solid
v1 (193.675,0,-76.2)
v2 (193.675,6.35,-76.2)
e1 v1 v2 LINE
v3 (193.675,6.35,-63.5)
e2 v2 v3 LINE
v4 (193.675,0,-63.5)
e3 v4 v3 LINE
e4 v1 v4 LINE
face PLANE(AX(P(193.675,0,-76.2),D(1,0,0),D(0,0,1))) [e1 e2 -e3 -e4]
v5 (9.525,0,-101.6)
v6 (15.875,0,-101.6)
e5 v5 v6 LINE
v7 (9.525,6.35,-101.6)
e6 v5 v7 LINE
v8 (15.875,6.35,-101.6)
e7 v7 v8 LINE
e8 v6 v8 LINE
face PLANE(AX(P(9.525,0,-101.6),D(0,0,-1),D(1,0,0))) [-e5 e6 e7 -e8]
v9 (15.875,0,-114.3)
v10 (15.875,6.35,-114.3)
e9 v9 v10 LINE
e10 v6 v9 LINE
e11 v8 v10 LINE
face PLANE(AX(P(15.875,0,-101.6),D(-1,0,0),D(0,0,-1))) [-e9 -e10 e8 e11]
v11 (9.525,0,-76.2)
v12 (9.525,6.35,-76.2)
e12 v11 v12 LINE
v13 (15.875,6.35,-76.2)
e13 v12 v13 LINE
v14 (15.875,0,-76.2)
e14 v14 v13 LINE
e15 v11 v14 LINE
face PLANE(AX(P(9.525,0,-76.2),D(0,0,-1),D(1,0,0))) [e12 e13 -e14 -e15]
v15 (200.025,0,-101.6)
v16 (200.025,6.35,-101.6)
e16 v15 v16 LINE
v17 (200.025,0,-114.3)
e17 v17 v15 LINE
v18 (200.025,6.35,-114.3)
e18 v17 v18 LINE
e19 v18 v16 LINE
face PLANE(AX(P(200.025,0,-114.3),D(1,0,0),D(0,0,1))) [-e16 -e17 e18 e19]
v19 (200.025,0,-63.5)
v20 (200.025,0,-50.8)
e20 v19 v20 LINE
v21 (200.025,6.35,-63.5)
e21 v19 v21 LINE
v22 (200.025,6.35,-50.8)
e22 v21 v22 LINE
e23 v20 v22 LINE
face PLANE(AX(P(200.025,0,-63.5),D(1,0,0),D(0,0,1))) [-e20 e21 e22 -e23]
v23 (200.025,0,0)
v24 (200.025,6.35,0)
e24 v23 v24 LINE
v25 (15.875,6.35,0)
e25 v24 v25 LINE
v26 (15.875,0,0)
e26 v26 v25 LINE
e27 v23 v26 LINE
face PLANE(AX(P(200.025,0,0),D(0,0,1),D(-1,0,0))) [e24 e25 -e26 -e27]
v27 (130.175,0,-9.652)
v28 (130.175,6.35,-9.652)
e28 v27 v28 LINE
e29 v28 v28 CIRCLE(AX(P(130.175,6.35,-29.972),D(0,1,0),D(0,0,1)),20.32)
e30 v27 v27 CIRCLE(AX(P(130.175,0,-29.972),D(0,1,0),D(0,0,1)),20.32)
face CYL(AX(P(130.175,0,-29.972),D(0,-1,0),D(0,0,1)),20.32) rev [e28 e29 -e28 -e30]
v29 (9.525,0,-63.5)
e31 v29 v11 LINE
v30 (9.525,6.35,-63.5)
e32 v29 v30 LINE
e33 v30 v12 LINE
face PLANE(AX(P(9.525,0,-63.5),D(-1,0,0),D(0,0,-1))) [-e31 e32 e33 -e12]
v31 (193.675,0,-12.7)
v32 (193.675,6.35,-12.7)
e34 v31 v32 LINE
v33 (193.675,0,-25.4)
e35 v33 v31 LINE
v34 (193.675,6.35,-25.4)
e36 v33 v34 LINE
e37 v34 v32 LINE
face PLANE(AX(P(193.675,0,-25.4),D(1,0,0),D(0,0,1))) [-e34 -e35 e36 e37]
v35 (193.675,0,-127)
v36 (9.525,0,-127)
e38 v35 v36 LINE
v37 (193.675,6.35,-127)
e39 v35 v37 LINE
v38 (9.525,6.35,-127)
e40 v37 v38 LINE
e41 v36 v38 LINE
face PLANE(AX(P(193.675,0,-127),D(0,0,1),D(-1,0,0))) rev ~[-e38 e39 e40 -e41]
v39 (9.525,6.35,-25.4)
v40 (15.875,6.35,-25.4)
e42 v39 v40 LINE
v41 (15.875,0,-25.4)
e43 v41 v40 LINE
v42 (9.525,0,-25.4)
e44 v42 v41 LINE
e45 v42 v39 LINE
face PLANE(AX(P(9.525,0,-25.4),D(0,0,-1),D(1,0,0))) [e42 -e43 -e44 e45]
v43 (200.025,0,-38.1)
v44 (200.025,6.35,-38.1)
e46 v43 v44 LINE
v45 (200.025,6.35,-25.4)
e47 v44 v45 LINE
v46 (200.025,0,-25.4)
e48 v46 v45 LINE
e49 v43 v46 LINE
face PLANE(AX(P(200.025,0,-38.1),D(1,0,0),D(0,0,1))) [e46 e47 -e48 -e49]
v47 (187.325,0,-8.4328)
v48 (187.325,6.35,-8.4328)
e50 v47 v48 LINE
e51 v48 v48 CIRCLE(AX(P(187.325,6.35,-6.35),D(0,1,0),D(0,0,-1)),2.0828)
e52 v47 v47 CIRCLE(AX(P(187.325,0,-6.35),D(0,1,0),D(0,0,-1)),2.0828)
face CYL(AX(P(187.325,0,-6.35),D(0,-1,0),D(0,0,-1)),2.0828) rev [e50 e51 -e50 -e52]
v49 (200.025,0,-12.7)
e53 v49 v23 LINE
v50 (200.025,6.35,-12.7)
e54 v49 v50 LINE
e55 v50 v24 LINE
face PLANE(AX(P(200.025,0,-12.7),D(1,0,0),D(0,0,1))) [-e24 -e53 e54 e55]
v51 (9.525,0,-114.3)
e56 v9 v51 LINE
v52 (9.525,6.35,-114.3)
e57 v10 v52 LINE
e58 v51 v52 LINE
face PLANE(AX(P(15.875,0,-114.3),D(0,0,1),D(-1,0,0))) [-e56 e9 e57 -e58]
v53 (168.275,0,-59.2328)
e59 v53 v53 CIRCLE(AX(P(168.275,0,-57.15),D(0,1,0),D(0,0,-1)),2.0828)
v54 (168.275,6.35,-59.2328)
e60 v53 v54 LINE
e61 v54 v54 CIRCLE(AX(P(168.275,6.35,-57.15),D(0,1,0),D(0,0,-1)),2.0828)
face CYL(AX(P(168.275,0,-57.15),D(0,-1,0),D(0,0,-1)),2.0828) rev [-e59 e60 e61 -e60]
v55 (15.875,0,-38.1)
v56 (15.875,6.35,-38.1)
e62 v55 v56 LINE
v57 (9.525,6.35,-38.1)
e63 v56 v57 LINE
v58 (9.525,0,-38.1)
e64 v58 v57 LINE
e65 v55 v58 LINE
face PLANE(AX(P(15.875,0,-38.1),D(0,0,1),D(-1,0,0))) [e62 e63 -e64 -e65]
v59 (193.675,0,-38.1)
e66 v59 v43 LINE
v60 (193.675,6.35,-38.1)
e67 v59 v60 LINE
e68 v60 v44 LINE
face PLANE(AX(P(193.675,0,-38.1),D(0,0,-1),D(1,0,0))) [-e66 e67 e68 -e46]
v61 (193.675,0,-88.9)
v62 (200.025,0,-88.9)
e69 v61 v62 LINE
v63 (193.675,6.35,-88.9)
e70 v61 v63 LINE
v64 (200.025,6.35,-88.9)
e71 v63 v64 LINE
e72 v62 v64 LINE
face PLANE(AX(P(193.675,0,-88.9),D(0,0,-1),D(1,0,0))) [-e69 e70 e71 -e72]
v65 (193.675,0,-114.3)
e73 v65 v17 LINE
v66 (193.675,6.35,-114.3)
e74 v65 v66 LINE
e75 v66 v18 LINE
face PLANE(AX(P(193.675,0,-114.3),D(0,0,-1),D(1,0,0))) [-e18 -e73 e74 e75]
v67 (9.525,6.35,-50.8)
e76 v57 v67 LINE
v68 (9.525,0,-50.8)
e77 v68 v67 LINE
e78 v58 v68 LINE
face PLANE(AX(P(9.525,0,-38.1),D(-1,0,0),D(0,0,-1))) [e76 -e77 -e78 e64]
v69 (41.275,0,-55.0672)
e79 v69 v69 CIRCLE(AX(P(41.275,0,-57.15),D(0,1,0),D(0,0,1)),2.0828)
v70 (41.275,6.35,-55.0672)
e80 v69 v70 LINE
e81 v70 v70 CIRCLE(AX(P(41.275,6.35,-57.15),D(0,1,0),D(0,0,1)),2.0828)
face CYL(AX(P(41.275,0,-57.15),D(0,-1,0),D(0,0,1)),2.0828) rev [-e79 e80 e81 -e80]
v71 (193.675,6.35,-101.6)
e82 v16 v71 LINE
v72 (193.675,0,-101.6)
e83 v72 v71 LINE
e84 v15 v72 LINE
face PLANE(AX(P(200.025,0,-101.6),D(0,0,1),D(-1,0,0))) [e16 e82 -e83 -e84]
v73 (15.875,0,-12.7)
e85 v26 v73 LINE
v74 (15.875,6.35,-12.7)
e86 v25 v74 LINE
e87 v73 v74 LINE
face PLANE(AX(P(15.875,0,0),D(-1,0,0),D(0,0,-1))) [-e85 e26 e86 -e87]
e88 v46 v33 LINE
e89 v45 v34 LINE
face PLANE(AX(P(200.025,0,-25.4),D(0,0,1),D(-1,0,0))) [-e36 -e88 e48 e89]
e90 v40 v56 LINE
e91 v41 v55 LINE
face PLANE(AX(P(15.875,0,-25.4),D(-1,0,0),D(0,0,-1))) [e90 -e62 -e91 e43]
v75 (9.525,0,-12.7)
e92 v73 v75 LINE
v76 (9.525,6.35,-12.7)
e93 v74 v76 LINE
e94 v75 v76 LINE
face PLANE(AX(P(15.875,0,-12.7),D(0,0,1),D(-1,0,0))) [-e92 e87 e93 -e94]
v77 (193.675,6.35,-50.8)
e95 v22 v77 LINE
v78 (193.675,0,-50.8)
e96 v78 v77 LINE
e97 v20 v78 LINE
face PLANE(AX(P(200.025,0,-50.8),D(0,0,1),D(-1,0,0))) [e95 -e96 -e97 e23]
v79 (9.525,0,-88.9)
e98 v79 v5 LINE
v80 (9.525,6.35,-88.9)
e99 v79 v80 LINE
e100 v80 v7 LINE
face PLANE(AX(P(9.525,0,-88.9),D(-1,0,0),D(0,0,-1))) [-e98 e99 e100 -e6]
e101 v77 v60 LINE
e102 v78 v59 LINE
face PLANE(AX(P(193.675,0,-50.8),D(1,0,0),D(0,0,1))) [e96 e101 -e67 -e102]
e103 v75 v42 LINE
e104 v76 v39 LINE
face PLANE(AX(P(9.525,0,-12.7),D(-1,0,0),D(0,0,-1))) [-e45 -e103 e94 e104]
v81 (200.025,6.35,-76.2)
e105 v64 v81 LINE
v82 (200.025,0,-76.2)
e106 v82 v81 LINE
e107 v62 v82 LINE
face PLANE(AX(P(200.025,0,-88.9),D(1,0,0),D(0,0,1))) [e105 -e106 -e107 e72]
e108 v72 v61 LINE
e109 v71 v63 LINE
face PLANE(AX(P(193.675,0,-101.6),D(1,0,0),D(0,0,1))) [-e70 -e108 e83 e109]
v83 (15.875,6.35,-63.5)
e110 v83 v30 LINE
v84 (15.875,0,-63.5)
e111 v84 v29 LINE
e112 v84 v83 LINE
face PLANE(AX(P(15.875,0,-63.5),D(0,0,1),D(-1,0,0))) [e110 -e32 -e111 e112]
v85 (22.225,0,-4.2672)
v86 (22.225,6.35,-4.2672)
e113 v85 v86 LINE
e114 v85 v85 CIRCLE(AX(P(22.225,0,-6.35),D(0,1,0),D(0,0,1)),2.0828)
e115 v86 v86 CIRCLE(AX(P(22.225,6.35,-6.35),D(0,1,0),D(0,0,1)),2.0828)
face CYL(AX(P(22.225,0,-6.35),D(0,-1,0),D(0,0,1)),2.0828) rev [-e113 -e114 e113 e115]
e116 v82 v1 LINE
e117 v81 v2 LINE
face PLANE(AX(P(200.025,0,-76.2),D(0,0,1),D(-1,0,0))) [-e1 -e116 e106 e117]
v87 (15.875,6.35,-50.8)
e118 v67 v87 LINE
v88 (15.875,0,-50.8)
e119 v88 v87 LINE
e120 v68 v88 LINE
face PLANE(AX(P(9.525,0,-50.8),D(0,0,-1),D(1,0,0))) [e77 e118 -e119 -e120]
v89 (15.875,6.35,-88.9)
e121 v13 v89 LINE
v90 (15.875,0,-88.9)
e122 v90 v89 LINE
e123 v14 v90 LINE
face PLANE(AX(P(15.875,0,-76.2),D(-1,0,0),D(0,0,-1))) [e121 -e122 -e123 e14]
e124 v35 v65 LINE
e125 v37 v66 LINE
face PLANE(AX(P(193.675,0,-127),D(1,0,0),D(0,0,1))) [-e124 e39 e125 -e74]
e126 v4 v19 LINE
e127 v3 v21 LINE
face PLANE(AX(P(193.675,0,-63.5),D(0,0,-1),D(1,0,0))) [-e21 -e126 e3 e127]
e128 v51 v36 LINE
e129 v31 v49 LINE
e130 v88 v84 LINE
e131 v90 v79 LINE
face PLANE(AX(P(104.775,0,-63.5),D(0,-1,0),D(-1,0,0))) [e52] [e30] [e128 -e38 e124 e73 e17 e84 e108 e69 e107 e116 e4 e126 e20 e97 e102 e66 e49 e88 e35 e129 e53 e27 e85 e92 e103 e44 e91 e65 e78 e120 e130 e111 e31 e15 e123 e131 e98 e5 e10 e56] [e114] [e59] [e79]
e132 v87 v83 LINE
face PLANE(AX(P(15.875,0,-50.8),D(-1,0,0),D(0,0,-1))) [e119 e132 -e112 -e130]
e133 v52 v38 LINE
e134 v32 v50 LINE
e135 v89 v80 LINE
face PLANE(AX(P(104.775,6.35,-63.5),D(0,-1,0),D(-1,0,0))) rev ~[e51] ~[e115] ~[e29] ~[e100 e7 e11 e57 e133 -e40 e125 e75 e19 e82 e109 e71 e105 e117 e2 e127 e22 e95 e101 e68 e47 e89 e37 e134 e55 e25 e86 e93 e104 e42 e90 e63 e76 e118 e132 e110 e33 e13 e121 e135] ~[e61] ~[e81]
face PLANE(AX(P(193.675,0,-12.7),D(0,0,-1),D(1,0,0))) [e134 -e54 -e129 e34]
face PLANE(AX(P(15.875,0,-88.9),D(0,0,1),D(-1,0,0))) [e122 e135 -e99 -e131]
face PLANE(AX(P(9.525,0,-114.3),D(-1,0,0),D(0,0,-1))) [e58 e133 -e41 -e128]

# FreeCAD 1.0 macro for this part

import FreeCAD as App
import Part
import Sketcher
Q = App.Units.Quantity

doc = App.newDocument("Part")
body = doc.addObject("PartDesign::Body", "Body")

# Sketch on XZ plane
sketch1 = doc.addObject("Sketcher::SketchObject", "Sketch")
body.addObject(sketch1)
sketch1.AttachmentSupport = (doc.XZ_Plane, [""])
sketch1.MapMode = "FlatFace"
sketch1.addGeometry([
    Part.LineSegment(App.Vector(15.875, -12.7, 0), App.Vector(15.875, 0, 0)),  # 0
    Part.LineSegment(App.Vector(15.875, 0, 0), App.Vector(200.025, 0, 0)),  # 1
    Part.LineSegment(App.Vector(200.025, 0, 0), App.Vector(200.025, -12.7, 0)),  # 2
    Part.LineSegment(App.Vector(200.025, -12.7, 0), App.Vector(193.675, -12.7, 0)),  # 3
    Part.LineSegment(App.Vector(193.675, -12.7, 0), App.Vector(193.675, -25.4, 0)),  # 4
    Part.LineSegment(App.Vector(193.675, -25.4, 0), App.Vector(200.025, -25.4, 0)),  # 5
    Part.LineSegment(App.Vector(200.025, -25.4, 0), App.Vector(200.025, -38.1, 0)),  # 6
    Part.LineSegment(App.Vector(200.025, -38.1, 0), App.Vector(193.675, -38.1, 0)),  # 7
    Part.LineSegment(App.Vector(193.675, -38.1, 0), App.Vector(193.675, -50.8, 0)),  # 8
    Part.LineSegment(App.Vector(193.675, -50.8, 0), App.Vector(200.025, -50.8, 0)),  # 9
    Part.LineSegment(App.Vector(200.025, -50.8, 0), App.Vector(200.025, -63.5, 0)),  # 10
    Part.LineSegment(App.Vector(200.025, -63.5, 0), App.Vector(193.675, -63.5, 0)),  # 11
    Part.LineSegment(App.Vector(193.675, -63.5, 0), App.Vector(193.675, -76.2, 0)),  # 12
    Part.LineSegment(App.Vector(193.675, -76.2, 0), App.Vector(200.025, -76.2, 0)),  # 13
    Part.LineSegment(App.Vector(200.025, -76.2, 0), App.Vector(200.025, -88.9, 0)),  # 14
    Part.LineSegment(App.Vector(200.025, -88.9, 0), App.Vector(193.675, -88.9, 0)),  # 15
    Part.LineSegment(App.Vector(193.675, -88.9, 0), App.Vector(193.675, -101.6, 0)),  # 16
    Part.LineSegment(App.Vector(193.675, -101.6, 0), App.Vector(200.025, -101.6, 0)),  # 17
    Part.LineSegment(App.Vector(200.025, -101.6, 0), App.Vector(200.025, -114.3, 0)),  # 18
    Part.LineSegment(App.Vector(200.025, -114.3, 0), App.Vector(193.675, -114.3, 0)),  # 19
    Part.LineSegment(App.Vector(193.675, -114.3, 0), App.Vector(193.675, -127, 0)),  # 20
    Part.LineSegment(App.Vector(193.675, -127, 0), App.Vector(9.525, -127, 0)),  # 21
    Part.LineSegment(App.Vector(9.525, -127, 0), App.Vector(9.525, -114.3, 0)),  # 22
    Part.LineSegment(App.Vector(9.525, -114.3, 0), App.Vector(15.875, -114.3, 0)),  # 23
    Part.LineSegment(App.Vector(15.875, -114.3, 0), App.Vector(15.875, -101.6, 0)),  # 24
    Part.LineSegment(App.Vector(15.875, -101.6, 0), App.Vector(9.525, -101.6, 0)),  # 25
    Part.LineSegment(App.Vector(9.525, -101.6, 0), App.Vector(9.525, -88.9, 0)),  # 26
    Part.LineSegment(App.Vector(9.525, -88.9, 0), App.Vector(15.875, -88.9, 0)),  # 27
    Part.LineSegment(App.Vector(15.875, -88.9, 0), App.Vector(15.875, -76.2, 0)),  # 28
    Part.LineSegment(App.Vector(15.875, -76.2, 0), App.Vector(9.525, -76.2, 0)),  # 29
    Part.LineSegment(App.Vector(9.525, -76.2, 0), App.Vector(9.525, -63.5, 0)),  # 30
    Part.LineSegment(App.Vector(9.525, -63.5, 0), App.Vector(15.875, -63.5, 0)),  # 31
    Part.LineSegment(App.Vector(15.875, -63.5, 0), App.Vector(15.875, -50.8, 0)),  # 32
    Part.LineSegment(App.Vector(15.875, -50.8, 0), App.Vector(9.525, -50.8, 0)),  # 33
    Part.LineSegment(App.Vector(9.525, -50.8, 0), App.Vector(9.525, -38.1, 0)),  # 34
    Part.LineSegment(App.Vector(9.525, -38.1, 0), App.Vector(15.875, -38.1, 0)),  # 35
    Part.LineSegment(App.Vector(15.875, -38.1, 0), App.Vector(15.875, -25.4, 0)),  # 36
    Part.LineSegment(App.Vector(15.875, -25.4, 0), App.Vector(9.525, -25.4, 0)),  # 37
    Part.LineSegment(App.Vector(9.525, -25.4, 0), App.Vector(9.525, -12.7, 0)),  # 38
    Part.LineSegment(App.Vector(9.525, -12.7, 0), App.Vector(15.875, -12.7, 0)),  # 39
    Part.Circle(App.Vector(187.325, -6.35, 0), App.Vector(0, 0, 1), 2.0828),  # 40
    Part.Circle(App.Vector(130.175, -29.972, 0), App.Vector(0, 0, 1), 20.32),  # 41
    Part.Circle(App.Vector(22.225, -6.35, 0), App.Vector(0, 0, 1), 2.0828),  # 42
    Part.Circle(App.Vector(168.275, -57.15, 0), App.Vector(0, 0, 1), 2.0828),  # 43
    Part.Circle(App.Vector(41.275, -57.15, 0), App.Vector(0, 0, 1), 2.0828),  # 44
], False)
sketch1.addConstraint([
    Sketcher.Constraint("Coincident", 0, 2, 1, 1),
    Sketcher.Constraint("Coincident", 1, 2, 2, 1),
    Sketcher.Constraint("Coincident", 2, 2, 3, 1),
    Sketcher.Constraint("Coincident", 3, 2, 4, 1),
    Sketcher.Constraint("Coincident", 4, 2, 5, 1),
    Sketcher.Constraint("Coincident", 5, 2, 6, 1),
    Sketcher.Constraint("Coincident", 6, 2, 7, 1),
    Sketcher.Constraint("Coincident", 7, 2, 8, 1),
    Sketcher.Constraint("Coincident", 8, 2, 9, 1),
    Sketcher.Constraint("Coincident", 9, 2, 10, 1),
    Sketcher.Constraint("Coincident", 10, 2, 11, 1),
    Sketcher.Constraint("Coincident", 11, 2, 12, 1),
    Sketcher.Constraint("Coincident", 12, 2, 13, 1),
    Sketcher.Constraint("Coincident", 13, 2, 14, 1),
    Sketcher.Constraint("Coincident", 14, 2, 15, 1),
    Sketcher.Constraint("Coincident", 15, 2, 16, 1),
    Sketcher.Constraint("Coincident", 16, 2, 17, 1),
    Sketcher.Constraint("Coincident", 17, 2, 18, 1),
    Sketcher.Constraint("Coincident", 18, 2, 19, 1),
    Sketcher.Constraint("Coincident", 19, 2, 20, 1),
    Sketcher.Constraint("Coincident", 20, 2, 21, 1),
    Sketcher.Constraint("Coincident", 21, 2, 22, 1),
    Sketcher.Constraint("Coincident", 22, 2, 23, 1),
    Sketcher.Constraint("Coincident", 23, 2, 24, 1),
    Sketcher.Constraint("Coincident", 24, 2, 25, 1),
    Sketcher.Constraint("Coincident", 25, 2, 26, 1),
    Sketcher.Constraint("Coincident", 26, 2, 27, 1),
    Sketcher.Constraint("Coincident", 27, 2, 28, 1),
    Sketcher.Constraint("Coincident", 28, 2, 29, 1),
    Sketcher.Constraint("Coincident", 29, 2, 30, 1),
    Sketcher.Constraint("Coincident", 30, 2, 31, 1),
    Sketcher.Constraint("Coincident", 31, 2, 32, 1),
    Sketcher.Constraint("Coincident", 32, 2, 33, 1),
    Sketcher.Constraint("Coincident", 33, 2, 34, 1),
    Sketcher.Constraint("Coincident", 34, 2, 35, 1),
    Sketcher.Constraint("Coincident", 35, 2, 36, 1),
    Sketcher.Constraint("Coincident", 36, 2, 37, 1),
    Sketcher.Constraint("Coincident", 37, 2, 38, 1),
    Sketcher.Constraint("Coincident", 38, 2, 39, 1),
    Sketcher.Constraint("Coincident", 39, 2, 0, 1),
    Sketcher.Constraint("Vertical", 0),
    Sketcher.Constraint("Horizontal", 1),
    Sketcher.Constraint("Vertical", 2),
    Sketcher.Constraint("Horizontal", 3),
    Sketcher.Constraint("Vertical", 4),
    Sketcher.Constraint("Horizontal", 5),
    Sketcher.Constraint("Vertical", 6),
    Sketcher.Constraint("Horizontal", 7),
    Sketcher.Constraint("Vertical", 8),
    Sketcher.Constraint("Horizontal", 9),
    Sketcher.Constraint("Vertical", 10),
    Sketcher.Constraint("Horizontal", 11),
    Sketcher.Constraint("Vertical", 12),
    Sketcher.Constraint("Horizontal", 13),
    Sketcher.Constraint("Vertical", 14),
    Sketcher.Constraint("Horizontal", 15),
    Sketcher.Constraint("Vertical", 16),
    Sketcher.Constraint("Horizontal", 17),
    Sketcher.Constraint("Vertical", 18),
    Sketcher.Constraint("Horizontal", 19),
    Sketcher.Constraint("Vertical", 20),
    Sketcher.Constraint("Horizontal", 21),
    Sketcher.Constraint("Vertical", 22),
    Sketcher.Constraint("Horizontal", 23),
    Sketcher.Constraint("Vertical", 24),
    Sketcher.Constraint("Horizontal", 25),
    Sketcher.Constraint("Vertical", 26),
    Sketcher.Constraint("Horizontal", 27),
    Sketcher.Constraint("Vertical", 28),
    Sketcher.Constraint("Horizontal", 29),
    Sketcher.Constraint("Vertical", 30),
    Sketcher.Constraint("Horizontal", 31),
    Sketcher.Constraint("Vertical", 32),
    Sketcher.Constraint("Horizontal", 33),
    Sketcher.Constraint("Vertical", 34),
    Sketcher.Constraint("Horizontal", 35),
    Sketcher.Constraint("Vertical", 36),
    Sketcher.Constraint("Horizontal", 37),
    Sketcher.Constraint("Vertical", 38),
    Sketcher.Constraint("Horizontal", 39),
    Sketcher.Constraint("Equal", 40, 42),
    Sketcher.Constraint("Equal", 42, 43),
    Sketcher.Constraint("Equal", 43, 44),
    Sketcher.Constraint("PointOnObject", 0, 2, -1),
    Sketcher.Constraint("Horizontal", 40, 3, 42, 3),
    Sketcher.Constraint("Horizontal", 43, 3, 44, 3),
    Sketcher.Constraint("Horizontal", 19, 2, 22, 2),
    Sketcher.Constraint("Horizontal", 17, 2, 24, 2),
    Sketcher.Constraint("Horizontal", 15, 2, 26, 2),
    Sketcher.Constraint("Horizontal", 13, 2, 28, 2),
    Sketcher.Constraint("Horizontal", 11, 2, 30, 2),
    Sketcher.Constraint("Horizontal", 9, 2, 32, 2),
    Sketcher.Constraint("Horizontal", 7, 2, 34, 2),
    Sketcher.Constraint("Horizontal", 5, 2, 36, 2),
    Sketcher.Constraint("Horizontal", 3, 2, 38, 2),
    Sketcher.Constraint("Vertical", 2, 2, 5, 2),
    Sketcher.Constraint("Vertical", 4, 2, 7, 2),
    Sketcher.Constraint("Vertical", 6, 2, 9, 2),
    Sketcher.Constraint("Vertical", 8, 2, 11, 2),
    Sketcher.Constraint("Vertical", 10, 2, 13, 2),
    Sketcher.Constraint("Vertical", 12, 2, 15, 2),
    Sketcher.Constraint("Vertical", 14, 2, 17, 2),
    Sketcher.Constraint("Vertical", 16, 2, 19, 2),
    Sketcher.Constraint("Vertical", 0, 2, 23, 2),
    Sketcher.Constraint("Vertical", 22, 2, 25, 2),
    Sketcher.Constraint("Vertical", 24, 2, 27, 2),
    Sketcher.Constraint("Vertical", 26, 2, 29, 2),
    Sketcher.Constraint("Vertical", 28, 2, 31, 2),
    Sketcher.Constraint("Vertical", 30, 2, 33, 2),
    Sketcher.Constraint("Vertical", 32, 2, 35, 2),
    Sketcher.Constraint("Vertical", 34, 2, 37, 2),
    Sketcher.Constraint("Equal", 1, 21),
    Sketcher.Constraint("Equal", 2, 4),
    Sketcher.Constraint("Equal", 4, 6),
    Sketcher.Constraint("Equal", 6, 8),
    Sketcher.Constraint("Equal", 8, 10),
    Sketcher.Constraint("Equal", 10, 12),
    Sketcher.Constraint("Equal", 12, 14),
    Sketcher.Constraint("Equal", 14, 16),
    Sketcher.Constraint("Equal", 16, 18),
    Sketcher.Constraint("Equal", 18, 20),
    Sketcher.Constraint("Diameter", 41, Q("1.6 in")),
    Sketcher.Constraint("Diameter", 40, Q("0.164 in")),
    Sketcher.Constraint("DistanceY", 0, 1, 0, 2, Q("0.5 in")),
    Sketcher.Constraint("DistanceY", 43, 3, 40, 3, Q("2 in")),
    Sketcher.Constraint("DistanceX", 44, 3, 43, 3, Q("5 in")),
    Sketcher.Constraint("DistanceX", 0, 2, 44, 3, Q("1 in")),
    Sketcher.Constraint("DistanceX", 42, 3, 1, 2, Q("7 in")),
    Sketcher.Constraint("DistanceX", 43, 3, 3, 2, Q("1 in")),
    Sketcher.Constraint("DistanceX", 1, 1, 1, 2, Q("7.25 in")),
    Sketcher.Constraint("DistanceX", 42, 3, 40, 3, Q("6.5 in")),
    Sketcher.Constraint("DistanceX", 41, 3, 43, 3, Q("1.5 in")),
    Sketcher.Constraint("DistanceY", 40, 3, -1, 1, Q("0.25 in")),
    Sketcher.Constraint("DistanceY", 41, 3, -1, 1, Q("1.18 in")),
    Sketcher.Constraint("DistanceX", -1, 1, 40, 3, Q("7.375 in")),
])
pad1 = doc.addObject("PartDesign::Pad", "Pad")
body.addObject(pad1)
pad1.Profile = sketch1
pad1.Length = Q("0.25 in")
pad1.Reversed = True

doc.recompute()
